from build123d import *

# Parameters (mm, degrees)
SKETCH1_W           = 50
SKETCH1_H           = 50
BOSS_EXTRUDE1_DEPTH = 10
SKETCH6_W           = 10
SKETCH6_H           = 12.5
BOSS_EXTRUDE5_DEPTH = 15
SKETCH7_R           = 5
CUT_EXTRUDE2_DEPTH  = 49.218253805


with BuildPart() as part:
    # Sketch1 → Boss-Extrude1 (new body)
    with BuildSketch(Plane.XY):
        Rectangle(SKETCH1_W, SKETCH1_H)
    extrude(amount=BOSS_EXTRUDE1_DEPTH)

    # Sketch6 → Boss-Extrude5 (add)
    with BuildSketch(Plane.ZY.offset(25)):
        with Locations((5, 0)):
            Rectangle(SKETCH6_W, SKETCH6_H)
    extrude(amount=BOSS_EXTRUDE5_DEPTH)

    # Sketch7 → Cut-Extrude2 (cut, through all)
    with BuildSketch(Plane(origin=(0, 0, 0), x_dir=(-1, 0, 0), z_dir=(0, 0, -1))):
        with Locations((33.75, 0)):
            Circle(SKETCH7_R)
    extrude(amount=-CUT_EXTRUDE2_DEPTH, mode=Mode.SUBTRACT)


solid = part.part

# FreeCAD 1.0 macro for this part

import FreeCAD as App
import Part
import Sketcher
from FreeCAD import Vector

doc = App.newDocument("Part")
body = doc.addObject("PartDesign::Body", "Body")

# Sketch on XY plane
sketch1 = body.newObject("Sketcher::SketchObject", "Sketch")
sketch1.AttachmentSupport = (doc.getObject("XY_Plane"), [""])
sketch1.MapMode = "FlatFace"
sketch1.addGeometry([
    Part.LineSegment(Vector(-25, 25, 0), Vector(-25, -25, 0)),
    Part.LineSegment(Vector(-25, -25, 0), Vector(25, -25, 0)),
    Part.LineSegment(Vector(25, -25, 0), Vector(25, 25, 0)),
    Part.LineSegment(Vector(25, 25, 0), Vector(-25, 25, 0)),
], False)
sketch1.addConstraint([
    Sketcher.Constraint("Coincident", 0, 2, 1, 1),
    Sketcher.Constraint("Coincident", 1, 2, 2, 1),
    Sketcher.Constraint("Coincident", 2, 2, 3, 1),
    Sketcher.Constraint("Coincident", 3, 2, 0, 1),
    Sketcher.Constraint("Vertical", 0),
    Sketcher.Constraint("Horizontal", 1),
    Sketcher.Constraint("Vertical", 2),
    Sketcher.Constraint("Horizontal", 3),
    Sketcher.Constraint("Symmetric", 0, 2, 2, 2, -1, 1),
    Sketcher.Constraint("Equal", 3, 0),
    Sketcher.Constraint("DistanceX", 1, 1, 1, 2, 50.0),
])
pad1 = body.newObject("PartDesign::Pad", "Pad")
pad1.Profile = sketch1
pad1.Length = 10

# Sketch on YZ plane
sketch2 = body.newObject("Sketcher::SketchObject", "Sketch001")
sketch2.AttachmentSupport = (doc.getObject("YZ_Plane"), [""])
sketch2.MapMode = "FlatFace"
sketch2.AttachmentOffset = App.Placement(Vector(0, 0, -25), App.Rotation())
sketch2.addGeometry([
    Part.LineSegment(Vector(6, 0, 0), Vector(-6, 0, 0)),
    Part.LineSegment(Vector(-6, 0, 0), Vector(-6, 10, 0)),
    Part.LineSegment(Vector(-6, 10, 0), Vector(6, 10, 0)),
    Part.LineSegment(Vector(6, 10, 0), Vector(6, 0, 0)),
], False)
sketch2.addConstraint([
    Sketcher.Constraint("Coincident", 0, 2, 1, 1),
    Sketcher.Constraint("Coincident", 1, 2, 2, 1),
    Sketcher.Constraint("Coincident", 2, 2, 3, 1),
    Sketcher.Constraint("Coincident", 3, 2, 0, 1),
    Sketcher.Constraint("Horizontal", 0),
    Sketcher.Constraint("Vertical", 1),
    Sketcher.Constraint("Horizontal", 2),
    Sketcher.Constraint("Vertical", 3),
    Sketcher.Constraint("Symmetric", 0, 2, 3, 2, -1, 1),
    Sketcher.Constraint("DistanceY", 1, 1, 1, 2, 10.0),
    Sketcher.Constraint("DistanceX", 0, 2, 0, 1, 12.5),
])
pad2 = body.newObject("PartDesign::Pad", "Pad001")
pad2.Profile = sketch2
pad2.Length = 15
pad2.Reversed = True

# Sketch on XY plane
sketch3 = body.newObject("Sketcher::SketchObject", "Sketch002")
sketch3.AttachmentSupport = (doc.getObject("XY_Plane"), [""])
sketch3.MapMode = "FlatFace"
sketch3.addGeometry(Part.Circle(Vector(-34, 0, 0), Vector(0, 0, 1), 5), False)
sketch3.addConstraint([
    Sketcher.Constraint("PointOnObject", 0, 3, -1),
    Sketcher.Constraint("Diameter", 0, 10.0),
    Sketcher.Constraint("DistanceX", 0, 3, -1, 1, 33.75),
])
pocket1 = body.newObject("PartDesign::Pocket", "Pocket")
pocket1.Profile = sketch3
pocket1.Type = "ThroughAll"
pocket1.Reversed = True

doc.recompute()
